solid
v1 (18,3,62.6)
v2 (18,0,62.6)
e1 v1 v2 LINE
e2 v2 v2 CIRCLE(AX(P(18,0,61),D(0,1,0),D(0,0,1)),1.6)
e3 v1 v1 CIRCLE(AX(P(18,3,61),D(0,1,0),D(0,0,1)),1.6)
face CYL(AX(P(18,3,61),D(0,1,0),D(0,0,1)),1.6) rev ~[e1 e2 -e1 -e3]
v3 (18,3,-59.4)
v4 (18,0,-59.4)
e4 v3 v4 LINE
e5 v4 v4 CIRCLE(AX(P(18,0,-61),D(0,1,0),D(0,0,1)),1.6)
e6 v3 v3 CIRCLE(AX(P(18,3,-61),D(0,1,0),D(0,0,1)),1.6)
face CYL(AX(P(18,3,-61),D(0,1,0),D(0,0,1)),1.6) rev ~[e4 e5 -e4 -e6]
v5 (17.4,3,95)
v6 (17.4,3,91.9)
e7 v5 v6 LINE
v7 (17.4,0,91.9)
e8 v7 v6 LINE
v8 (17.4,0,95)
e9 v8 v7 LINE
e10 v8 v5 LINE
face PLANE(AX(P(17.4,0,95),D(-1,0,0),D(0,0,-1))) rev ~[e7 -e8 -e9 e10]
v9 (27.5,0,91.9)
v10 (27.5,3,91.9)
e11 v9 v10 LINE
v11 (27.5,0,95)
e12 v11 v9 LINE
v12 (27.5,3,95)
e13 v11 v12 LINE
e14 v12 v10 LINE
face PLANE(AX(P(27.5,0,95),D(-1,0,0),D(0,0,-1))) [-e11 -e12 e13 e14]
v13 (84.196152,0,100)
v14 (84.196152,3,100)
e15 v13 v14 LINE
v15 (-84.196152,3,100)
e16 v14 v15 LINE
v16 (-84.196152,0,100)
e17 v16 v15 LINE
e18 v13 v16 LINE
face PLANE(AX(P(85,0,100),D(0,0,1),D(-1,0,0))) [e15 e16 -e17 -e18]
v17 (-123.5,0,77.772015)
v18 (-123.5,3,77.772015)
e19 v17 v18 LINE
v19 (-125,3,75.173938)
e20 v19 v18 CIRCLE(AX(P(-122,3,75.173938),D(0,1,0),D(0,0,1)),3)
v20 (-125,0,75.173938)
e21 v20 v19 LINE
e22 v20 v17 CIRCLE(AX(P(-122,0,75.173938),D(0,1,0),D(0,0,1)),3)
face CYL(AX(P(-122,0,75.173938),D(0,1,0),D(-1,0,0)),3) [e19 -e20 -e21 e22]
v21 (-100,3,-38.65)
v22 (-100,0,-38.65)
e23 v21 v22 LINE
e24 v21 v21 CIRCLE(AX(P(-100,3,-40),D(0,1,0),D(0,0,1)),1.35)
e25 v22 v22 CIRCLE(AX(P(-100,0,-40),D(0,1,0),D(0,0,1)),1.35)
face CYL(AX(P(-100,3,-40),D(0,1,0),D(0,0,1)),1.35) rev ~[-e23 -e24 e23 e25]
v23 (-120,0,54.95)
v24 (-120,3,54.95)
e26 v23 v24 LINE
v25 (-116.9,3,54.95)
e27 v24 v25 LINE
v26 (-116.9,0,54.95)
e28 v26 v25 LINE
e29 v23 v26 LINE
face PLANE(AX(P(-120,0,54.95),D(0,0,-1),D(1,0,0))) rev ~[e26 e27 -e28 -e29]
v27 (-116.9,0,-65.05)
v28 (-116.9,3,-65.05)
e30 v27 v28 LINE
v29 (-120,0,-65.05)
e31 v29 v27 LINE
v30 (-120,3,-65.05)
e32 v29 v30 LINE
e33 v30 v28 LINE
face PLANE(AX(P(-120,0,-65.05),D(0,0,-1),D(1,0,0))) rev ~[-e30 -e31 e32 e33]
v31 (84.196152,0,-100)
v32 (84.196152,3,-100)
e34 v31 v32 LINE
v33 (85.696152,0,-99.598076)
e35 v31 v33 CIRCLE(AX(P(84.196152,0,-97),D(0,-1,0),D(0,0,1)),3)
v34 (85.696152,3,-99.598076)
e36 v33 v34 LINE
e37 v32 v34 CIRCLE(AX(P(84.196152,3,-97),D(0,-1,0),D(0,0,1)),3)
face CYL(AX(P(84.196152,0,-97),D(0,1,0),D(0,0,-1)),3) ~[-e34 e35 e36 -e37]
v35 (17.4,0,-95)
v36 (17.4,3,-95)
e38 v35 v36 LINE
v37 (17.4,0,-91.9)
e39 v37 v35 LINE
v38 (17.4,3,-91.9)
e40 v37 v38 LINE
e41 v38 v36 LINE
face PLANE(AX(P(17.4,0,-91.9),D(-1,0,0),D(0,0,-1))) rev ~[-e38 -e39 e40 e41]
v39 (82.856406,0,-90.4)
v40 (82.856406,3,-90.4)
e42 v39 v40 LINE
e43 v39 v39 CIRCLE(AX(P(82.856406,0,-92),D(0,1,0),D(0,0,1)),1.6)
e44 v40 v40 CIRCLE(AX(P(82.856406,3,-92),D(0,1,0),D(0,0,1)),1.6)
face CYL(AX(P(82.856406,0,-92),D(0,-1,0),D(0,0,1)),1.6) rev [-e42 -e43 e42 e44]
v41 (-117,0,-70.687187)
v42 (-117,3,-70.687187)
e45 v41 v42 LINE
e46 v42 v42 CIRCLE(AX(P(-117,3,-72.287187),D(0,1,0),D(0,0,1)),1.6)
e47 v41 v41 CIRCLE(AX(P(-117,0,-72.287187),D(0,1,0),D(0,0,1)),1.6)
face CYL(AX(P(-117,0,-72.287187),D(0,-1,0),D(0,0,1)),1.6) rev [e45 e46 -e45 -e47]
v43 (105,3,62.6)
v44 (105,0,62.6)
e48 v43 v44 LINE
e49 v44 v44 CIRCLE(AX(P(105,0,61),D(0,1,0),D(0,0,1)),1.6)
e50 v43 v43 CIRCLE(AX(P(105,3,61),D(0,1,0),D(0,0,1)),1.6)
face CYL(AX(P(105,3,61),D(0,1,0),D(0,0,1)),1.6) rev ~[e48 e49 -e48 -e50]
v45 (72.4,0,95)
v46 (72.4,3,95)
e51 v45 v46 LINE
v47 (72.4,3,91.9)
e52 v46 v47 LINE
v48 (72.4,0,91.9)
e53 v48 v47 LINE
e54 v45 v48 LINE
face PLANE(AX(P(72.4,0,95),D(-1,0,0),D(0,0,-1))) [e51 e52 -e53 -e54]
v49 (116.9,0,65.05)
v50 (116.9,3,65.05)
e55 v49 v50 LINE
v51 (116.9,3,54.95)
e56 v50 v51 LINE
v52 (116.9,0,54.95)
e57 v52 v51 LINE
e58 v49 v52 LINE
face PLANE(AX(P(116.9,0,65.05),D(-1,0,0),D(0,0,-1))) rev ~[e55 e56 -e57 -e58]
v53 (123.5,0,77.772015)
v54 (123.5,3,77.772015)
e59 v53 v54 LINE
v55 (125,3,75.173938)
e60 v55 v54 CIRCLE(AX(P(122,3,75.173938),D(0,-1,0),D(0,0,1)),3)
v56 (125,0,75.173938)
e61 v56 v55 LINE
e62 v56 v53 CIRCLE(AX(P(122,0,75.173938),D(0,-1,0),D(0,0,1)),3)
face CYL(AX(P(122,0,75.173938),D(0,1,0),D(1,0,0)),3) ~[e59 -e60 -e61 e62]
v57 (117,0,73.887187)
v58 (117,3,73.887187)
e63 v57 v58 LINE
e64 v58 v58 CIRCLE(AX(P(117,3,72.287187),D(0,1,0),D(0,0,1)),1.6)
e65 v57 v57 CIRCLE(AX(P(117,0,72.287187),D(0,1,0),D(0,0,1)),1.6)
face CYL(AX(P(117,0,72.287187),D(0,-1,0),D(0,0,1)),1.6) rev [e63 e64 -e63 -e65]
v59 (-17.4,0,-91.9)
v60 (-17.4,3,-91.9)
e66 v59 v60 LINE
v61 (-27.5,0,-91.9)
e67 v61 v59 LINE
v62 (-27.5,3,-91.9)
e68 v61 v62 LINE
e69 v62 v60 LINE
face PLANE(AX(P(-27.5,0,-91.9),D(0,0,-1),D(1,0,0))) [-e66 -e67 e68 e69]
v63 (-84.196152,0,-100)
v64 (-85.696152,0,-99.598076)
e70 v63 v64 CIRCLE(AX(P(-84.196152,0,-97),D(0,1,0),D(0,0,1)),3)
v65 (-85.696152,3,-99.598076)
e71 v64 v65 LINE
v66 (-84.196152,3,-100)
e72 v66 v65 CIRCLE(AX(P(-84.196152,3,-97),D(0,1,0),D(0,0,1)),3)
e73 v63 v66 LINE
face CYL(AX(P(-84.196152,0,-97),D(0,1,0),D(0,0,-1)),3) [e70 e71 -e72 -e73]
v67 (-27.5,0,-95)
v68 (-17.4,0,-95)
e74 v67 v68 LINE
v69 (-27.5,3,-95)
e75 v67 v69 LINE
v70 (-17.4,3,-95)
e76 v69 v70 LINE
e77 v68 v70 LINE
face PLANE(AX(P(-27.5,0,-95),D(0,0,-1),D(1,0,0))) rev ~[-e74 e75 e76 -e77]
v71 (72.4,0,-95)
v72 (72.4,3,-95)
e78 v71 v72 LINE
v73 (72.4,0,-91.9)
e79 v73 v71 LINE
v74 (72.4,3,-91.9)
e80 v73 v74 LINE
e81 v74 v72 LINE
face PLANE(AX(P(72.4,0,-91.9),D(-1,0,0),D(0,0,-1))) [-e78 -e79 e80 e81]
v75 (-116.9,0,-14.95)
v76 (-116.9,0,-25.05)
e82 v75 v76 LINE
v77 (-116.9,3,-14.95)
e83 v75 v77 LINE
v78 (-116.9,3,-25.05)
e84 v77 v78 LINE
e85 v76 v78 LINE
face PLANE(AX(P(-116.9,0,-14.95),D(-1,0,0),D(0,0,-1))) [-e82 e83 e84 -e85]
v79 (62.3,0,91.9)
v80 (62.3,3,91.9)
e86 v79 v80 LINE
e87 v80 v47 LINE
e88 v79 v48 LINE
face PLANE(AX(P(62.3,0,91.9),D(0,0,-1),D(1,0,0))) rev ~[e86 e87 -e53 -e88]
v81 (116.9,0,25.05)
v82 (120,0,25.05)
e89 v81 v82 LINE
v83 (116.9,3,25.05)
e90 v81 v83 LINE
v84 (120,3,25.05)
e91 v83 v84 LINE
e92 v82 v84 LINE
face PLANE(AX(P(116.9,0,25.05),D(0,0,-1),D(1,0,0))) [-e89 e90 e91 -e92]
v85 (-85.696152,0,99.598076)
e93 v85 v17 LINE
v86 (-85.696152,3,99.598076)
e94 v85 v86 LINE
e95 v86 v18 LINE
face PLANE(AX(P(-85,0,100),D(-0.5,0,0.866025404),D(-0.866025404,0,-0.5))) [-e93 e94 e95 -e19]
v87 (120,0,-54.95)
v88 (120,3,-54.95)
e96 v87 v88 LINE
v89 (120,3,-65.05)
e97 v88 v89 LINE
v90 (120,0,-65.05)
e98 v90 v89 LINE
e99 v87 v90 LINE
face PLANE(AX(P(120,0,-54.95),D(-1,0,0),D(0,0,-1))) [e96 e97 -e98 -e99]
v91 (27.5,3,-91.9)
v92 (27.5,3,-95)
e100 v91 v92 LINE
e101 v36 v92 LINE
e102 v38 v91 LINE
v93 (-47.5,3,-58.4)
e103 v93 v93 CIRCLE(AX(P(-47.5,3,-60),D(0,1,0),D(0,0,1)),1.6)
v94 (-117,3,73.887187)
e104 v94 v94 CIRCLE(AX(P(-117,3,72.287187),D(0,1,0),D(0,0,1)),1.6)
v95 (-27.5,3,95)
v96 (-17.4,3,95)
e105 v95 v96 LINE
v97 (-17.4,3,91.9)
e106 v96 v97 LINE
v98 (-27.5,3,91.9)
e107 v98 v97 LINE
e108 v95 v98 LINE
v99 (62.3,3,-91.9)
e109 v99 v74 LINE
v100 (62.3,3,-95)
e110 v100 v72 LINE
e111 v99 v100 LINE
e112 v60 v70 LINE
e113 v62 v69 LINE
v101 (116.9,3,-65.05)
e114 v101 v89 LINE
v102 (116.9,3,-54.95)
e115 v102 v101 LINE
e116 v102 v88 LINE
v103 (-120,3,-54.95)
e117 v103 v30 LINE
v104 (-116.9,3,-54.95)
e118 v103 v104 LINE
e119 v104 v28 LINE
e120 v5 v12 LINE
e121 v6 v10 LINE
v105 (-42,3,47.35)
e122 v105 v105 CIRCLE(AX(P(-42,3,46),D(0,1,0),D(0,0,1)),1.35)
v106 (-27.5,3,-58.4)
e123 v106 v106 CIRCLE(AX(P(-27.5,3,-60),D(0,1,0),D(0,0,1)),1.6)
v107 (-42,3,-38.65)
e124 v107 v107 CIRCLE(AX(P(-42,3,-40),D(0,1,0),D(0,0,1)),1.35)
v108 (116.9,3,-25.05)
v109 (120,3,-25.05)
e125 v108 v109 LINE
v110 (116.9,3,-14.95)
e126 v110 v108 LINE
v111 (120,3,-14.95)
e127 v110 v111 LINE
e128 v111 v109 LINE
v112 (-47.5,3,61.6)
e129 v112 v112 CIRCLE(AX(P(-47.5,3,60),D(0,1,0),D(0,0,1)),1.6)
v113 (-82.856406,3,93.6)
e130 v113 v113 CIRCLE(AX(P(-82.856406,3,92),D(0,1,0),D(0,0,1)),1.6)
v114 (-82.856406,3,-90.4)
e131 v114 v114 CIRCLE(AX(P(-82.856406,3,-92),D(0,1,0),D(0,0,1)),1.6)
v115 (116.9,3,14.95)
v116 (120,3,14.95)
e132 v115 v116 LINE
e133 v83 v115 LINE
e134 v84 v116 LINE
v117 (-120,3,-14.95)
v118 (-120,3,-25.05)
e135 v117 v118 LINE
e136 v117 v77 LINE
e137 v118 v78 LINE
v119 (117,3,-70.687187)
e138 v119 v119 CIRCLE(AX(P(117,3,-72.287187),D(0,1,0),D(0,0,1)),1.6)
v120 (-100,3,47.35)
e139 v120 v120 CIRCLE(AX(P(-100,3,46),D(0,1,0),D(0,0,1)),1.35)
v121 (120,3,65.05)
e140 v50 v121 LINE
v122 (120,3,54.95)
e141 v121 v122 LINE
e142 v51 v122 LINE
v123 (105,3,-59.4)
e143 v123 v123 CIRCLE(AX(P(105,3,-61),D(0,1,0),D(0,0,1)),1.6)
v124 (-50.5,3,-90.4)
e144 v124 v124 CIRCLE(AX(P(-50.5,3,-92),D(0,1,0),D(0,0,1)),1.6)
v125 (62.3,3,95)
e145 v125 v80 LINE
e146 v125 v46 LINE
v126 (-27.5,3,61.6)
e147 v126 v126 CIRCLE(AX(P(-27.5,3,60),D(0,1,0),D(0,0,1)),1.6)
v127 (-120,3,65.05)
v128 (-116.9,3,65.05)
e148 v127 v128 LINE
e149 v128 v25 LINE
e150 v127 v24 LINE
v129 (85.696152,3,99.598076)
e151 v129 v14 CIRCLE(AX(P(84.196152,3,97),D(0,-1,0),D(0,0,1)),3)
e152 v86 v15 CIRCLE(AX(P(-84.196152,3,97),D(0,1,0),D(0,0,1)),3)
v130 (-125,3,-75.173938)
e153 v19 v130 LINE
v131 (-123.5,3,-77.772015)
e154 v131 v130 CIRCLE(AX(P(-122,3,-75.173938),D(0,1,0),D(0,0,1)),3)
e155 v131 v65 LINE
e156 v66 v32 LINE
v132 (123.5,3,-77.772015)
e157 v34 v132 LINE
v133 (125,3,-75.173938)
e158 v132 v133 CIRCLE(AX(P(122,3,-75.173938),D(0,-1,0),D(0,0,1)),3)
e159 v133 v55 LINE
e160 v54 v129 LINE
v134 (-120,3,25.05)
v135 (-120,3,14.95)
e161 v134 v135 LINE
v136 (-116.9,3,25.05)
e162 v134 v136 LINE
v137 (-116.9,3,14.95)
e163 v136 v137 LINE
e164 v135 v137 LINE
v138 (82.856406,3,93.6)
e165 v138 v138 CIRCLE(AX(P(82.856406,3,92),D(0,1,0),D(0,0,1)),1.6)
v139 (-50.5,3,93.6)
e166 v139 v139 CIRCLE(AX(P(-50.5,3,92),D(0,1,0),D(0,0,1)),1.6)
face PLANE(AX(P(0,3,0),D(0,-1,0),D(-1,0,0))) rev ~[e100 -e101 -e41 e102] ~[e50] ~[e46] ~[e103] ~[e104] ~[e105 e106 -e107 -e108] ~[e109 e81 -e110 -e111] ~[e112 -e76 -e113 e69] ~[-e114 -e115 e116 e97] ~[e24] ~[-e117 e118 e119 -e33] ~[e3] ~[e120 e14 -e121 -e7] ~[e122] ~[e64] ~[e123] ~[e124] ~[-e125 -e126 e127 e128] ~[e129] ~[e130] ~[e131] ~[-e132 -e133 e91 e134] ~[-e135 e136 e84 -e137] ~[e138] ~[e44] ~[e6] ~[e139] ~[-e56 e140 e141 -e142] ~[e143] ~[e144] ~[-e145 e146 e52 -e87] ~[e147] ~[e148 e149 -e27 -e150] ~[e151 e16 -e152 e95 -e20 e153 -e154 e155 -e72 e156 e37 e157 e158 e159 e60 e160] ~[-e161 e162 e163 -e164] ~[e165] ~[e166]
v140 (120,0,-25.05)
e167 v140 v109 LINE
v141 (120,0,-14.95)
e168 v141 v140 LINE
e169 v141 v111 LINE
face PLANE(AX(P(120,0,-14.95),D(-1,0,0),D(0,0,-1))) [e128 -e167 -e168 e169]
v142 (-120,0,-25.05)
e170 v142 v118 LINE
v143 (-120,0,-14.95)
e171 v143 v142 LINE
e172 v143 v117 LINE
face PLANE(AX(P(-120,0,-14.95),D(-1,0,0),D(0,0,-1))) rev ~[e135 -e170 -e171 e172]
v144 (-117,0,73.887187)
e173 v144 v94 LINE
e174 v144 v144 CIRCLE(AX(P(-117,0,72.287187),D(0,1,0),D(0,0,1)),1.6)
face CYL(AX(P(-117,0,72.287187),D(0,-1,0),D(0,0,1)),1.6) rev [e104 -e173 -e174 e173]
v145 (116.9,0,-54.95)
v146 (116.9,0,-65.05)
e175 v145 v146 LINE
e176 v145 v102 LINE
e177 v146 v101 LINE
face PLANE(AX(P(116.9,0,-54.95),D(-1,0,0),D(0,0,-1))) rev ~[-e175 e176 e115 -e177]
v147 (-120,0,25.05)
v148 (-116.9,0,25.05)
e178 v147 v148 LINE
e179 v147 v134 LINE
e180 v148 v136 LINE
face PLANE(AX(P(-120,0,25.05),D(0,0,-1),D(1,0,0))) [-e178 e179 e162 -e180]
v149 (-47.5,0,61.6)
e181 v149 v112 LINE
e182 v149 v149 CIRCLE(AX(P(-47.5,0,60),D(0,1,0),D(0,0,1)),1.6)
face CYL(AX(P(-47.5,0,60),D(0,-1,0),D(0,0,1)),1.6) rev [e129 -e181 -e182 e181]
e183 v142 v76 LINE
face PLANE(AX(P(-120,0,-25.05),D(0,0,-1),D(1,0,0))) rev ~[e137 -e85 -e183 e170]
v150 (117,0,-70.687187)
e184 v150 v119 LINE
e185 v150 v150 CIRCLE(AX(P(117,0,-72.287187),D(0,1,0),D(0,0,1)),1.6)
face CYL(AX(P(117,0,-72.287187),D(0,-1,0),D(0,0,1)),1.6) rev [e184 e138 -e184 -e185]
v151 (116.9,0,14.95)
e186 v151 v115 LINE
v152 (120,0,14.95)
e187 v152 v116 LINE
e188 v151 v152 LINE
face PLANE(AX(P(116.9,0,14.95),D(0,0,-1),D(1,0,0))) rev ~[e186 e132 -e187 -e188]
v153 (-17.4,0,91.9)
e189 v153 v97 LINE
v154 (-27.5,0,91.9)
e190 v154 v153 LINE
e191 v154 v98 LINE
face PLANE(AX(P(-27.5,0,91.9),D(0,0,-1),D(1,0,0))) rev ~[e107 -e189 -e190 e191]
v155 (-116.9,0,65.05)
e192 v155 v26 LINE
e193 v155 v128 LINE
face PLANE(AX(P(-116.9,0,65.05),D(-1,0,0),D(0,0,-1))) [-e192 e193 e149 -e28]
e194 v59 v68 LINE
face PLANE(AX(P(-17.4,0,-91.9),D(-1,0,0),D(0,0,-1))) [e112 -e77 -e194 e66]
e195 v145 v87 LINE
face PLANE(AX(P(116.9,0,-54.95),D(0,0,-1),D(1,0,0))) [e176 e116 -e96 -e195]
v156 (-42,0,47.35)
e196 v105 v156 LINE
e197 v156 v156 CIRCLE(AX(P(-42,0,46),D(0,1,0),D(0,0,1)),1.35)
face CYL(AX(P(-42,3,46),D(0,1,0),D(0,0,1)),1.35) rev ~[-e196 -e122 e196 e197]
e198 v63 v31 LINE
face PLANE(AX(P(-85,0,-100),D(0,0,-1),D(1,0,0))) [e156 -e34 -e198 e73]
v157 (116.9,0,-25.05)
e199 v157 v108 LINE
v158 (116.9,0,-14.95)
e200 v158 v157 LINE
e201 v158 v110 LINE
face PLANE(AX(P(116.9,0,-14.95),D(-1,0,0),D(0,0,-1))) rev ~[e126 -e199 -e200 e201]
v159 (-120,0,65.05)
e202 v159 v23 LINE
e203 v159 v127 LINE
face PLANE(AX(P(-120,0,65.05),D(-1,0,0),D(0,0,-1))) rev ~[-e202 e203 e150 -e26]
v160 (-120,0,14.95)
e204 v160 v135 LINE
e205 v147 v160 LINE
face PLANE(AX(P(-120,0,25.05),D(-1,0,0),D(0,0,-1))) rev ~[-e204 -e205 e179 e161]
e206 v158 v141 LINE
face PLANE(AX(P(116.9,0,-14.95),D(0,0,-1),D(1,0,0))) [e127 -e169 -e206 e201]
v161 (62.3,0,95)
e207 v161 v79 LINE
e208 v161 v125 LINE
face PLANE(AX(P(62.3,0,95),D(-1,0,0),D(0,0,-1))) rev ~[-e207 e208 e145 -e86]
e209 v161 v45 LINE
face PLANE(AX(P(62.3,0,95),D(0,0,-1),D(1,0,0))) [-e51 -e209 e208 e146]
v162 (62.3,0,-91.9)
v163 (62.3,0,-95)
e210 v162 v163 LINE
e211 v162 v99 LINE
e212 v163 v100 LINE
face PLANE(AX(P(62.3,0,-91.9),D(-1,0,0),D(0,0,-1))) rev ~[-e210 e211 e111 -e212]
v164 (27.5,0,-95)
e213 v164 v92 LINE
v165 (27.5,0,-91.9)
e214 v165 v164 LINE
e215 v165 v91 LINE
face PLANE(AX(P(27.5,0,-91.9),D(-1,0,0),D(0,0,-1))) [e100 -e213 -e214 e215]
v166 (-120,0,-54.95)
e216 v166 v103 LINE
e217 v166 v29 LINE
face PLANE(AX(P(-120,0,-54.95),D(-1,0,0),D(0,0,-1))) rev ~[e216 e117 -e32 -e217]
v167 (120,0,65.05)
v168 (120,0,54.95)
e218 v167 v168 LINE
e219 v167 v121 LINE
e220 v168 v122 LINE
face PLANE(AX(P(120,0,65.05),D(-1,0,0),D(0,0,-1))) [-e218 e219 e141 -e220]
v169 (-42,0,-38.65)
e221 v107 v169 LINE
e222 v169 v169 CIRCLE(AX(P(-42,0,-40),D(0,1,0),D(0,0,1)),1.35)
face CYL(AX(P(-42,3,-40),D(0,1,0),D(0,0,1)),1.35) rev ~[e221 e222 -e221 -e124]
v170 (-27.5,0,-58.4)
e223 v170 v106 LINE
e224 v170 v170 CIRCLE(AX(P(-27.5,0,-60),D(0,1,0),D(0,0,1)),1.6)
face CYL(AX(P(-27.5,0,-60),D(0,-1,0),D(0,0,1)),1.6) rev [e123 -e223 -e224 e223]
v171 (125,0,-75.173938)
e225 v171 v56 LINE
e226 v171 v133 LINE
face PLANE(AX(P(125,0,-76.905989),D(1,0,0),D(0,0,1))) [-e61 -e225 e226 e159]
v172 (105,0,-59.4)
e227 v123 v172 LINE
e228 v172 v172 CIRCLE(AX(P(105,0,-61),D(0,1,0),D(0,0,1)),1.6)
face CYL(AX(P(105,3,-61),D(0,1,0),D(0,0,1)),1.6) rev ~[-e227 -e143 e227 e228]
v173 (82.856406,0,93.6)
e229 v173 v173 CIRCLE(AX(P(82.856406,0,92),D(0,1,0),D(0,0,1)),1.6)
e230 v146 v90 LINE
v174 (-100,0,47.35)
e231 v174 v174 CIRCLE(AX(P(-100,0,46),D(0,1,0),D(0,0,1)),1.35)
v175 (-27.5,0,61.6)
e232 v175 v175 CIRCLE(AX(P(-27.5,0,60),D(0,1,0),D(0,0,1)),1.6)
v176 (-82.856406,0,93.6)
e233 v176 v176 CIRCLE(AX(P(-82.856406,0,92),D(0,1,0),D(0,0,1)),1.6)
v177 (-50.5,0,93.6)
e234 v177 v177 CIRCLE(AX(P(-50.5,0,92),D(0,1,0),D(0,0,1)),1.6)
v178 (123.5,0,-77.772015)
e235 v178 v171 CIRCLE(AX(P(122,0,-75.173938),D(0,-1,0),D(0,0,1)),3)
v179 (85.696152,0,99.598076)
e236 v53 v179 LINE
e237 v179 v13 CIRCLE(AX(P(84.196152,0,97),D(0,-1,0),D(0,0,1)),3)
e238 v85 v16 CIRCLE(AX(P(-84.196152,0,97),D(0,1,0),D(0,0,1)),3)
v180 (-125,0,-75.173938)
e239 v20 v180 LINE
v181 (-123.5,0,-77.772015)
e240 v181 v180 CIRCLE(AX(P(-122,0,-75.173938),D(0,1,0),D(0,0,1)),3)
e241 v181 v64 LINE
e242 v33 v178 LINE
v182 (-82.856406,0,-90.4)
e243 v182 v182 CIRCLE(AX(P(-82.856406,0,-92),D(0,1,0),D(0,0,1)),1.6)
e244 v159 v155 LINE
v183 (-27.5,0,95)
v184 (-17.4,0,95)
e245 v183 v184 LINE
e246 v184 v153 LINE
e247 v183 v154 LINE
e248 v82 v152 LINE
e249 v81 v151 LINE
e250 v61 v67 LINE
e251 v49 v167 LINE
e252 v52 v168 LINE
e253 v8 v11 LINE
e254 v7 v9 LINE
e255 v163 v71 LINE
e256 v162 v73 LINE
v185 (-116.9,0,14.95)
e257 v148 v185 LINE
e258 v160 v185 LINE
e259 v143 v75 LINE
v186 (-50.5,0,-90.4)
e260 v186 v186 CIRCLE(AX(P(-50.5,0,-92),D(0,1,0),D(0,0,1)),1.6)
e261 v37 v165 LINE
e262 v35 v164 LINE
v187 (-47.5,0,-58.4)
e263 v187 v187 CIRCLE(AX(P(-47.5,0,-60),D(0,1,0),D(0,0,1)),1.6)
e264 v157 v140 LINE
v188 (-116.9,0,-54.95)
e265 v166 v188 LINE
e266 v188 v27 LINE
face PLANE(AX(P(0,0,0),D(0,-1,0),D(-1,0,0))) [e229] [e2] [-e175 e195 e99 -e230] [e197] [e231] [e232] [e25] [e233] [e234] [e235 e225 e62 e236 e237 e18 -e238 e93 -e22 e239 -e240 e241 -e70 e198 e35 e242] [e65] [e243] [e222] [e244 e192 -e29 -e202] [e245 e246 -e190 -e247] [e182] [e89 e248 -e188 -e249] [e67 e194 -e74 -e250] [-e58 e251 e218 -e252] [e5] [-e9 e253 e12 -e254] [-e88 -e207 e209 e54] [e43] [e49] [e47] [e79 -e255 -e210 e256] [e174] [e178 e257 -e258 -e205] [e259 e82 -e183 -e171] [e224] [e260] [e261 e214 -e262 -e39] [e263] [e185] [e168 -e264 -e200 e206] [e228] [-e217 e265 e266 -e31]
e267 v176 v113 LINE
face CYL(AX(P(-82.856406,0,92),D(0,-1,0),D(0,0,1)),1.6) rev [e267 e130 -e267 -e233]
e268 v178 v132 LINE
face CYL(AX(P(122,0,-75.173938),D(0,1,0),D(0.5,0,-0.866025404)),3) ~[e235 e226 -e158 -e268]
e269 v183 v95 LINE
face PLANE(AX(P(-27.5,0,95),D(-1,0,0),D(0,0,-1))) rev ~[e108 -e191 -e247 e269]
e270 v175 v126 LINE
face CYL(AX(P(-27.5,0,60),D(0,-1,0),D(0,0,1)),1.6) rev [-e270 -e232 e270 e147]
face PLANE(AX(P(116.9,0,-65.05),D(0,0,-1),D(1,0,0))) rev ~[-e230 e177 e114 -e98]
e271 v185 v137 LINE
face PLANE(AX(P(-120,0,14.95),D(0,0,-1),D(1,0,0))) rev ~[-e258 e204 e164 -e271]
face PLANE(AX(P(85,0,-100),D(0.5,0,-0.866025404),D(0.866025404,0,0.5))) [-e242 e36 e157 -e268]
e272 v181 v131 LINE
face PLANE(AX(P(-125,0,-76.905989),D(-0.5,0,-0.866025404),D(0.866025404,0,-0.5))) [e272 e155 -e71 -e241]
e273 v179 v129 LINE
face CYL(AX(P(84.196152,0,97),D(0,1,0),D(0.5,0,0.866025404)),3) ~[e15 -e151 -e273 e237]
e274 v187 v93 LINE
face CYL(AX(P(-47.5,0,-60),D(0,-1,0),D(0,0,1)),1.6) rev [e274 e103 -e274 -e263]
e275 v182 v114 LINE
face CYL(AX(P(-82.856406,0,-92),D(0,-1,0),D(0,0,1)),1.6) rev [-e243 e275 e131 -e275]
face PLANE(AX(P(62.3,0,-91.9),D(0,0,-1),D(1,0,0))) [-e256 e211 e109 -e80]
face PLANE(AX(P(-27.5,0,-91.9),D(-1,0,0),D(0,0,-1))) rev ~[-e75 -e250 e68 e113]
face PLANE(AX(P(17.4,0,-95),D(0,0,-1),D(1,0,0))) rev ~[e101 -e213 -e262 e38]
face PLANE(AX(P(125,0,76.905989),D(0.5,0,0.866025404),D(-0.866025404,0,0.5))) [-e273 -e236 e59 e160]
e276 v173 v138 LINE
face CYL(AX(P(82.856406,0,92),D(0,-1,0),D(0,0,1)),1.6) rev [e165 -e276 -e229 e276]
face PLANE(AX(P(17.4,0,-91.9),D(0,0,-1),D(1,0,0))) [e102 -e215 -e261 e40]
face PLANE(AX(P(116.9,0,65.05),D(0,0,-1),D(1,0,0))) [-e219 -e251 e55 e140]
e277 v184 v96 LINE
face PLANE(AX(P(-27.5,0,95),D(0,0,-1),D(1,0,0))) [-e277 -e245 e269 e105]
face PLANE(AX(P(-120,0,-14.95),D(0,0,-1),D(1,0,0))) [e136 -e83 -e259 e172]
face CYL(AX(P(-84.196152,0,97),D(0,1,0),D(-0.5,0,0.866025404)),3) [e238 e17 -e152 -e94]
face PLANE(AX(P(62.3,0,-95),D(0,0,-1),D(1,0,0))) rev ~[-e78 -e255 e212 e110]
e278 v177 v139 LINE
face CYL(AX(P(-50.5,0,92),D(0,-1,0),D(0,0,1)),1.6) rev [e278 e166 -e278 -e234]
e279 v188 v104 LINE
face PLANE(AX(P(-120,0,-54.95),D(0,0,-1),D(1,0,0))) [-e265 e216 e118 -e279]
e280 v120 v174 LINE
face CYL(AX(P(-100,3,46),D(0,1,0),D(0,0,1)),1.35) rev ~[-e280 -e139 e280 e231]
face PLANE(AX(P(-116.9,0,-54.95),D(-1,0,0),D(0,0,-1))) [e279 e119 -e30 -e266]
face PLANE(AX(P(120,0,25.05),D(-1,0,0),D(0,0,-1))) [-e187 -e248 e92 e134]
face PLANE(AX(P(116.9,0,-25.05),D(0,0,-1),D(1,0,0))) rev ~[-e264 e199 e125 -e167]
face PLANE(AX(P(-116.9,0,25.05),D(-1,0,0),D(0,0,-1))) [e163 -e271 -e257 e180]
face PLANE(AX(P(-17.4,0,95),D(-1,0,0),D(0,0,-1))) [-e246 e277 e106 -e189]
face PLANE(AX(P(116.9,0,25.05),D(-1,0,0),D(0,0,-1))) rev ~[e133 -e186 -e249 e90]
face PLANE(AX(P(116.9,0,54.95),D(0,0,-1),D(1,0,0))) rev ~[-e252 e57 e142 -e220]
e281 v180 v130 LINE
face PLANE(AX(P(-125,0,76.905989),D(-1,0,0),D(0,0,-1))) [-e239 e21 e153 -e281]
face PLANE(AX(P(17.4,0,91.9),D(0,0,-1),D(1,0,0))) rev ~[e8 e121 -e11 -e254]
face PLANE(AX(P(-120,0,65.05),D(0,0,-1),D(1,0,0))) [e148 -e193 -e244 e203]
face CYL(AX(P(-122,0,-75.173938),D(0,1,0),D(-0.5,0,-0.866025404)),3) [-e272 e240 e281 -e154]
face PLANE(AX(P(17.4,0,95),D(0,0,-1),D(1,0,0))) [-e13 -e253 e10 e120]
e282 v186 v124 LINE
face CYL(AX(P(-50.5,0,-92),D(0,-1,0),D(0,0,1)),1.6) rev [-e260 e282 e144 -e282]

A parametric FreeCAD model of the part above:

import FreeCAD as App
import Part
import Sketcher

V = App.Vector
Q = App.Units.Quantity


def edges_at(feature, points):
    """Names of the edges that pass closest to the given points."""
    edges = feature.Shape.Edges
    near = lambda p: min(range(len(edges)), key=lambda i: edges[i].distToShape(Part.Vertex(*p))[0])
    return sorted({f"Edge{near(p) + 1}" for p in points})

doc = App.newDocument("Part")
body = doc.addObject("PartDesign::Body", "Body")

# Sketch on XZ plane
sketch1 = body.newObject("Sketcher::SketchObject", "Sketch")
sketch1.AttachmentSupport = (doc.getObject("XZ_Plane"), [""])
sketch1.MapMode = "FlatFace"
sketch1.addGeometry(Part.LineSegment(V(85, -100, 0), V(-85, -100, 0)), False)
sketch1.addGeometry(Part.LineSegment(V(-85, -100, 0), V(-125, -76.905989, 0)), False)
sketch1.addGeometry(Part.LineSegment(V(-125, -76.905989, 0), V(-125, 76.905989, 0)), False)
sketch1.addGeometry(Part.LineSegment(V(-125, 76.905989, 0), V(-85, 100, 0)), False)
sketch1.addGeometry(Part.LineSegment(V(-85, 100, 0), V(85, 100, 0)), False)
sketch1.addGeometry(Part.LineSegment(V(85, 100, 0), V(125, 76.905989, 0)), False)
sketch1.addGeometry(Part.LineSegment(V(125, 76.905989, 0), V(125, -76.905989, 0)), False)
sketch1.addGeometry(Part.LineSegment(V(125, -76.905989, 0), V(85, -100, 0)), False)
sketch1.addGeometry(Part.Circle(V(117, 72.287187, 0), V(0, 0, 1), 1.6), False)
sketch1.addGeometry(Part.Circle(V(82.856406, 92, 0), V(0, 0, 1), 1.6), False)
sketch1.addGeometry(Part.LineSegment(V(62.3, 95, 0), V(62.3, 91.9, 0)), False)
sketch1.addGeometry(Part.LineSegment(V(62.3, 91.9, 0), V(72.4, 91.9, 0)), False)
sketch1.addGeometry(Part.LineSegment(V(72.4, 91.9, 0), V(72.4, 95, 0)), False)
sketch1.addGeometry(Part.LineSegment(V(72.4, 95, 0), V(62.3, 95, 0)), False)
sketch1.addGeometry(Part.LineSegment(V(116.9, 65.05, 0), V(116.9, 54.95, 0)), False)
sketch1.addGeometry(Part.LineSegment(V(116.9, 54.95, 0), V(120, 54.95, 0)), False)
sketch1.addGeometry(Part.LineSegment(V(120, 54.95, 0), V(120, 65.05, 0)), False)
sketch1.addGeometry(Part.LineSegment(V(120, 65.05, 0), V(116.9, 65.05, 0)), False)
sketch1.addGeometry(Part.LineSegment(V(17.4, 95, 0), V(17.4, 91.9, 0)), False)
sketch1.addGeometry(Part.LineSegment(V(17.4, 91.9, 0), V(27.5, 91.9, 0)), False)
sketch1.addGeometry(Part.LineSegment(V(27.5, 91.9, 0), V(27.5, 95, 0)), False)
sketch1.addGeometry(Part.LineSegment(V(27.5, 95, 0), V(17.4, 95, 0)), False)
sketch1.addGeometry(Part.LineSegment(V(116.9, 25.05, 0), V(116.9, 14.95, 0)), False)
sketch1.addGeometry(Part.LineSegment(V(116.9, 14.95, 0), V(120, 14.95, 0)), False)
sketch1.addGeometry(Part.LineSegment(V(120, 14.95, 0), V(120, 25.05, 0)), False)
sketch1.addGeometry(Part.LineSegment(V(120, 25.05, 0), V(116.9, 25.05, 0)), False)
sketch1.addGeometry(Part.LineSegment(V(-27.5, 95, 0), V(-27.5, 91.9, 0)), False)
sketch1.addGeometry(Part.LineSegment(V(-27.5, 91.9, 0), V(-17.4, 91.9, 0)), False)
sketch1.addGeometry(Part.LineSegment(V(-17.4, 91.9, 0), V(-17.4, 95, 0)), False)
sketch1.addGeometry(Part.LineSegment(V(-17.4, 95, 0), V(-27.5, 95, 0)), False)
sketch1.addGeometry(Part.Circle(V(-50.5, 92, 0), V(0, 0, 1), 1.6), False)
sketch1.addGeometry(Part.Circle(V(-27.5, 60, 0), V(0, 0, 1), 1.6), False)
sketch1.addGeometry(Part.Circle(V(-47.5, 60, 0), V(0, 0, 1), 1.6), False)
sketch1.addGeometry(Part.Circle(V(-82.856406, 92, 0), V(0, 0, 1), 1.6), False)
sketch1.addGeometry(Part.Circle(V(-117, 72.287187, 0), V(0, 0, 1), 1.6), False)
sketch1.addGeometry(Part.LineSegment(V(-120, 65.05, 0), V(-120, 54.95, 0)), False)
sketch1.addGeometry(Part.LineSegment(V(-120, 54.95, 0), V(-116.9, 54.95, 0)), False)
sketch1.addGeometry(Part.LineSegment(V(-116.9, 54.95, 0), V(-116.9, 65.05, 0)), False)
sketch1.addGeometry(Part.LineSegment(V(-116.9, 65.05, 0), V(-120, 65.05, 0)), False)
sketch1.addGeometry(Part.LineSegment(V(-120, 25.05, 0), V(-120, 14.95, 0)), False)
sketch1.addGeometry(Part.LineSegment(V(-120, 14.95, 0), V(-116.9, 14.95, 0)), False)
sketch1.addGeometry(Part.LineSegment(V(-116.9, 14.95, 0), V(-116.9, 25.05, 0)), False)
sketch1.addGeometry(Part.LineSegment(V(-116.9, 25.05, 0), V(-120, 25.05, 0)), False)
sketch1.addGeometry(Part.LineSegment(V(116.9, -14.95, 0), V(116.9, -25.05, 0)), False)
sketch1.addGeometry(Part.LineSegment(V(116.9, -25.05, 0), V(120, -25.05, 0)), False)
sketch1.addGeometry(Part.LineSegment(V(120, -25.05, 0), V(120, -14.95, 0)), False)
sketch1.addGeometry(Part.LineSegment(V(120, -14.95, 0), V(116.9, -14.95, 0)), False)
sketch1.addGeometry(Part.LineSegment(V(116.9, -54.95, 0), V(116.9, -65.05, 0)), False)
sketch1.addGeometry(Part.LineSegment(V(116.9, -65.05, 0), V(120, -65.05, 0)), False)
sketch1.addGeometry(Part.LineSegment(V(120, -65.05, 0), V(120, -54.95, 0)), False)
sketch1.addGeometry(Part.LineSegment(V(120, -54.95, 0), V(116.9, -54.95, 0)), False)
sketch1.addGeometry(Part.Circle(V(117, -72.287187, 0), V(0, 0, 1), 1.6), False)
sketch1.addGeometry(Part.Circle(V(82.856406, -92, 0), V(0, 0, 1), 1.6), False)
sketch1.addGeometry(Part.LineSegment(V(62.3, -91.9, 0), V(62.3, -95, 0)), False)
sketch1.addGeometry(Part.LineSegment(V(62.3, -95, 0), V(72.4, -95, 0)), False)
sketch1.addGeometry(Part.LineSegment(V(72.4, -95, 0), V(72.4, -91.9, 0)), False)
sketch1.addGeometry(Part.LineSegment(V(72.4, -91.9, 0), V(62.3, -91.9, 0)), False)
sketch1.addGeometry(Part.LineSegment(V(17.4, -91.9, 0), V(17.4, -95, 0)), False)
sketch1.addGeometry(Part.LineSegment(V(17.4, -95, 0), V(27.5, -95, 0)), False)
sketch1.addGeometry(Part.LineSegment(V(27.5, -95, 0), V(27.5, -91.9, 0)), False)
sketch1.addGeometry(Part.LineSegment(V(27.5, -91.9, 0), V(17.4, -91.9, 0)), False)
sketch1.addGeometry(Part.LineSegment(V(-120, -14.95, 0), V(-120, -25.05, 0)), False)
sketch1.addGeometry(Part.LineSegment(V(-120, -25.05, 0), V(-116.9, -25.05, 0)), False)
sketch1.addGeometry(Part.LineSegment(V(-116.9, -25.05, 0), V(-116.9, -14.95, 0)), False)
sketch1.addGeometry(Part.LineSegment(V(-116.9, -14.95, 0), V(-120, -14.95, 0)), False)
sketch1.addGeometry(Part.Circle(V(-27.5, -60, 0), V(0, 0, 1), 1.6), False)
sketch1.addGeometry(Part.Circle(V(-47.5, -60, 0), V(0, 0, 1), 1.6), False)
sketch1.addGeometry(Part.LineSegment(V(-27.5, -91.9, 0), V(-27.5, -95, 0)), False)
sketch1.addGeometry(Part.LineSegment(V(-27.5, -95, 0), V(-17.4, -95, 0)), False)
sketch1.addGeometry(Part.LineSegment(V(-17.4, -95, 0), V(-17.4, -91.9, 0)), False)
sketch1.addGeometry(Part.LineSegment(V(-17.4, -91.9, 0), V(-27.5, -91.9, 0)), False)
sketch1.addGeometry(Part.Circle(V(-50.5, -92, 0), V(0, 0, 1), 1.6), False)
sketch1.addGeometry(Part.LineSegment(V(-120, -54.95, 0), V(-120, -65.05, 0)), False)
sketch1.addGeometry(Part.LineSegment(V(-120, -65.05, 0), V(-116.9, -65.05, 0)), False)
sketch1.addGeometry(Part.LineSegment(V(-116.9, -65.05, 0), V(-116.9, -54.95, 0)), False)
sketch1.addGeometry(Part.LineSegment(V(-116.9, -54.95, 0), V(-120, -54.95, 0)), False)
sketch1.addGeometry(Part.Circle(V(-82.856406, -92, 0), V(0, 0, 1), 1.6), False)
sketch1.addGeometry(Part.Circle(V(-117, -72.287187, 0), V(0, 0, 1), 1.6), False)
sketch1.addConstraint(Sketcher.Constraint("Coincident", 0, 2, 1, 1))
sketch1.addConstraint(Sketcher.Constraint("Coincident", 1, 2, 2, 1))
sketch1.addConstraint(Sketcher.Constraint("Coincident", 2, 2, 3, 1))
sketch1.addConstraint(Sketcher.Constraint("Coincident", 3, 2, 4, 1))
sketch1.addConstraint(Sketcher.Constraint("Coincident", 4, 2, 5, 1))
sketch1.addConstraint(Sketcher.Constraint("Coincident", 5, 2, 6, 1))
sketch1.addConstraint(Sketcher.Constraint("Coincident", 6, 2, 7, 1))
sketch1.addConstraint(Sketcher.Constraint("Coincident", 7, 2, 0, 1))
sketch1.addConstraint(Sketcher.Constraint("Coincident", 10, 2, 11, 1))
sketch1.addConstraint(Sketcher.Constraint("Coincident", 11, 2, 12, 1))
sketch1.addConstraint(Sketcher.Constraint("Coincident", 12, 2, 13, 1))
sketch1.addConstraint(Sketcher.Constraint("Coincident", 13, 2, 10, 1))
sketch1.addConstraint(Sketcher.Constraint("Coincident", 14, 2, 15, 1))
sketch1.addConstraint(Sketcher.Constraint("Coincident", 15, 2, 16, 1))
sketch1.addConstraint(Sketcher.Constraint("Coincident", 16, 2, 17, 1))
sketch1.addConstraint(Sketcher.Constraint("Coincident", 17, 2, 14, 1))
sketch1.addConstraint(Sketcher.Constraint("Coincident", 18, 2, 19, 1))
sketch1.addConstraint(Sketcher.Constraint("Coincident", 19, 2, 20, 1))
sketch1.addConstraint(Sketcher.Constraint("Coincident", 20, 2, 21, 1))
sketch1.addConstraint(Sketcher.Constraint("Coincident", 21, 2, 18, 1))
sketch1.addConstraint(Sketcher.Constraint("Coincident", 22, 2, 23, 1))
sketch1.addConstraint(Sketcher.Constraint("Coincident", 23, 2, 24, 1))
sketch1.addConstraint(Sketcher.Constraint("Coincident", 24, 2, 25, 1))
sketch1.addConstraint(Sketcher.Constraint("Coincident", 25, 2, 22, 1))
sketch1.addConstraint(Sketcher.Constraint("Coincident", 26, 2, 27, 1))
sketch1.addConstraint(Sketcher.Constraint("Coincident", 27, 2, 28, 1))
sketch1.addConstraint(Sketcher.Constraint("Coincident", 28, 2, 29, 1))
sketch1.addConstraint(Sketcher.Constraint("Coincident", 29, 2, 26, 1))
sketch1.addConstraint(Sketcher.Constraint("Coincident", 35, 2, 36, 1))
sketch1.addConstraint(Sketcher.Constraint("Coincident", 36, 2, 37, 1))
sketch1.addConstraint(Sketcher.Constraint("Coincident", 37, 2, 38, 1))
sketch1.addConstraint(Sketcher.Constraint("Coincident", 38, 2, 35, 1))
sketch1.addConstraint(Sketcher.Constraint("Coincident", 39, 2, 40, 1))
sketch1.addConstraint(Sketcher.Constraint("Coincident", 40, 2, 41, 1))
sketch1.addConstraint(Sketcher.Constraint("Coincident", 41, 2, 42, 1))
sketch1.addConstraint(Sketcher.Constraint("Coincident", 42, 2, 39, 1))
sketch1.addConstraint(Sketcher.Constraint("Coincident", 43, 2, 44, 1))
sketch1.addConstraint(Sketcher.Constraint("Coincident", 44, 2, 45, 1))
sketch1.addConstraint(Sketcher.Constraint("Coincident", 45, 2, 46, 1))
sketch1.addConstraint(Sketcher.Constraint("Coincident", 46, 2, 43, 1))
sketch1.addConstraint(Sketcher.Constraint("Coincident", 47, 2, 48, 1))
sketch1.addConstraint(Sketcher.Constraint("Coincident", 48, 2, 49, 1))
sketch1.addConstraint(Sketcher.Constraint("Coincident", 49, 2, 50, 1))
sketch1.addConstraint(Sketcher.Constraint("Coincident", 50, 2, 47, 1))
sketch1.addConstraint(Sketcher.Constraint("Coincident", 53, 2, 54, 1))
sketch1.addConstraint(Sketcher.Constraint("Coincident", 54, 2, 55, 1))
sketch1.addConstraint(Sketcher.Constraint("Coincident", 55, 2, 56, 1))
sketch1.addConstraint(Sketcher.Constraint("Coincident", 56, 2, 53, 1))
sketch1.addConstraint(Sketcher.Constraint("Coincident", 57, 2, 58, 1))
sketch1.addConstraint(Sketcher.Constraint("Coincident", 58, 2, 59, 1))
sketch1.addConstraint(Sketcher.Constraint("Coincident", 59, 2, 60, 1))
sketch1.addConstraint(Sketcher.Constraint("Coincident", 60, 2, 57, 1))
sketch1.addConstraint(Sketcher.Constraint("Coincident", 61, 2, 62, 1))
sketch1.addConstraint(Sketcher.Constraint("Coincident", 62, 2, 63, 1))
sketch1.addConstraint(Sketcher.Constraint("Coincident", 63, 2, 64, 1))
sketch1.addConstraint(Sketcher.Constraint("Coincident", 64, 2, 61, 1))
sketch1.addConstraint(Sketcher.Constraint("Coincident", 67, 2, 68, 1))
sketch1.addConstraint(Sketcher.Constraint("Coincident", 68, 2, 69, 1))
sketch1.addConstraint(Sketcher.Constraint("Coincident", 69, 2, 70, 1))
sketch1.addConstraint(Sketcher.Constraint("Coincident", 70, 2, 67, 1))
sketch1.addConstraint(Sketcher.Constraint("Coincident", 72, 2, 73, 1))
sketch1.addConstraint(Sketcher.Constraint("Coincident", 73, 2, 74, 1))
sketch1.addConstraint(Sketcher.Constraint("Coincident", 74, 2, 75, 1))
sketch1.addConstraint(Sketcher.Constraint("Coincident", 75, 2, 72, 1))
sketch1.addConstraint(Sketcher.Constraint("Horizontal", 0))
sketch1.addConstraint(Sketcher.Constraint("Vertical", 2))
sketch1.addConstraint(Sketcher.Constraint("Horizontal", 4))
sketch1.addConstraint(Sketcher.Constraint("Vertical", 6))
sketch1.addConstraint(Sketcher.Constraint("Vertical", 10))
sketch1.addConstraint(Sketcher.Constraint("Horizontal", 11))
sketch1.addConstraint(Sketcher.Constraint("Vertical", 12))
sketch1.addConstraint(Sketcher.Constraint("Horizontal", 13))
sketch1.addConstraint(Sketcher.Constraint("Vertical", 14))
sketch1.addConstraint(Sketcher.Constraint("Horizontal", 15))
sketch1.addConstraint(Sketcher.Constraint("Vertical", 16))
sketch1.addConstraint(Sketcher.Constraint("Horizontal", 17))
sketch1.addConstraint(Sketcher.Constraint("Vertical", 18))
sketch1.addConstraint(Sketcher.Constraint("Horizontal", 19))
sketch1.addConstraint(Sketcher.Constraint("Vertical", 20))
sketch1.addConstraint(Sketcher.Constraint("Horizontal", 21))
sketch1.addConstraint(Sketcher.Constraint("Vertical", 22))
sketch1.addConstraint(Sketcher.Constraint("Horizontal", 23))
sketch1.addConstraint(Sketcher.Constraint("Vertical", 24))
sketch1.addConstraint(Sketcher.Constraint("Horizontal", 25))
sketch1.addConstraint(Sketcher.Constraint("Vertical", 26))
sketch1.addConstraint(Sketcher.Constraint("Horizontal", 27))
sketch1.addConstraint(Sketcher.Constraint("Vertical", 28))
sketch1.addConstraint(Sketcher.Constraint("Horizontal", 29))
sketch1.addConstraint(Sketcher.Constraint("Vertical", 35))
sketch1.addConstraint(Sketcher.Constraint("Horizontal", 36))
sketch1.addConstraint(Sketcher.Constraint("Vertical", 37))
sketch1.addConstraint(Sketcher.Constraint("Horizontal", 38))
sketch1.addConstraint(Sketcher.Constraint("Vertical", 39))
sketch1.addConstraint(Sketcher.Constraint("Horizontal", 40))
sketch1.addConstraint(Sketcher.Constraint("Vertical", 41))
sketch1.addConstraint(Sketcher.Constraint("Horizontal", 42))
sketch1.addConstraint(Sketcher.Constraint("Vertical", 43))
sketch1.addConstraint(Sketcher.Constraint("Horizontal", 44))
sketch1.addConstraint(Sketcher.Constraint("Vertical", 45))
sketch1.addConstraint(Sketcher.Constraint("Horizontal", 46))
sketch1.addConstraint(Sketcher.Constraint("Vertical", 47))
sketch1.addConstraint(Sketcher.Constraint("Horizontal", 48))
sketch1.addConstraint(Sketcher.Constraint("Vertical", 49))
sketch1.addConstraint(Sketcher.Constraint("Horizontal", 50))
sketch1.addConstraint(Sketcher.Constraint("Vertical", 53))
sketch1.addConstraint(Sketcher.Constraint("Horizontal", 54))
sketch1.addConstraint(Sketcher.Constraint("Vertical", 55))
sketch1.addConstraint(Sketcher.Constraint("Horizontal", 56))
sketch1.addConstraint(Sketcher.Constraint("Vertical", 57))
sketch1.addConstraint(Sketcher.Constraint("Horizontal", 58))
sketch1.addConstraint(Sketcher.Constraint("Vertical", 59))
sketch1.addConstraint(Sketcher.Constraint("Horizontal", 60))
sketch1.addConstraint(Sketcher.Constraint("Vertical", 61))
sketch1.addConstraint(Sketcher.Constraint("Horizontal", 62))
sketch1.addConstraint(Sketcher.Constraint("Vertical", 63))
sketch1.addConstraint(Sketcher.Constraint("Horizontal", 64))
sketch1.addConstraint(Sketcher.Constraint("Vertical", 67))
sketch1.addConstraint(Sketcher.Constraint("Horizontal", 68))
sketch1.addConstraint(Sketcher.Constraint("Vertical", 69))
sketch1.addConstraint(Sketcher.Constraint("Horizontal", 70))
sketch1.addConstraint(Sketcher.Constraint("Vertical", 72))
sketch1.addConstraint(Sketcher.Constraint("Horizontal", 73))
sketch1.addConstraint(Sketcher.Constraint("Vertical", 74))
sketch1.addConstraint(Sketcher.Constraint("Horizontal", 75))
sketch1.addConstraint(Sketcher.Constraint("Equal", 8, 9))
sketch1.addConstraint(Sketcher.Constraint("Equal", 9, 30))
sketch1.addConstraint(Sketcher.Constraint("Equal", 30, 31))
sketch1.addConstraint(Sketcher.Constraint("Equal", 31, 32))
sketch1.addConstraint(Sketcher.Constraint("Equal", 32, 33))
sketch1.addConstraint(Sketcher.Constraint("Equal", 33, 34))
sketch1.addConstraint(Sketcher.Constraint("Equal", 34, 51))
sketch1.addConstraint(Sketcher.Constraint("Equal", 51, 52))
sketch1.addConstraint(Sketcher.Constraint("Equal", 52, 65))
sketch1.addConstraint(Sketcher.Constraint("Equal", 65, 66))
sketch1.addConstraint(Sketcher.Constraint("Equal", 66, 71))
sketch1.addConstraint(Sketcher.Constraint("Equal", 71, 76))
sketch1.addConstraint(Sketcher.Constraint("Equal", 76, 77))
sketch1.addConstraint(Sketcher.Constraint("Symmetric", 34, 3, 51, 3, -1, 1))
sketch1.addConstraint(Sketcher.Constraint("Symmetric", 33, 3, 52, 3, -1, 1))
sketch1.addConstraint(Sketcher.Constraint("Symmetric", 9, 3, 76, 3, -1, 1))
sketch1.addConstraint(Sketcher.Constraint("Symmetric", 8, 3, 77, 3, -1, 1))
sketch1.addConstraint(Sketcher.Constraint("Symmetric", 0, 2, 4, 2, -1, 1))
sketch1.addConstraint(Sketcher.Constraint("Symmetric", 1, 2, 5, 2, -1, 1))
sketch1.addConstraint(Sketcher.Constraint("Symmetric", 41, 2, 43, 2, -1, 1))
sketch1.addConstraint(Sketcher.Constraint("Symmetric", 39, 2, 45, 2, -1, 1))
sketch1.addConstraint(Sketcher.Constraint("Symmetric", 37, 2, 47, 2, -1, 1))
sketch1.addConstraint(Sketcher.Constraint("Symmetric", 35, 2, 49, 2, -1, 1))
sketch1.addConstraint(Sketcher.Constraint("Symmetric", 28, 2, 57, 2, -1, 1))
sketch1.addConstraint(Sketcher.Constraint("Symmetric", 26, 2, 59, 2, -1, 1))
sketch1.addConstraint(Sketcher.Constraint("Symmetric", 24, 2, 61, 2, -1, 1))
sketch1.addConstraint(Sketcher.Constraint("Symmetric", 22, 2, 63, 2, -1, 1))
sketch1.addConstraint(Sketcher.Constraint("Symmetric", 20, 2, 67, 2, -1, 1))
sketch1.addConstraint(Sketcher.Constraint("Symmetric", 18, 2, 69, 2, -1, 1))
sketch1.addConstraint(Sketcher.Constraint("Symmetric", 16, 2, 72, 2, -1, 1))
sketch1.addConstraint(Sketcher.Constraint("Symmetric", 14, 2, 74, 2, -1, 1))
sketch1.addConstraint(Sketcher.Constraint("Symmetric", 9, 3, 33, 3, -2))
sketch1.addConstraint(Sketcher.Constraint("Symmetric", 8, 3, 34, 3, -2))
sketch1.addConstraint(Sketcher.Constraint("Symmetric", 19, 2, 26, 2, -2))
sketch1.addConstraint(Sketcher.Constraint("Symmetric", 21, 2, 28, 2, -2))
sketch1.addConstraint(Sketcher.Constraint("Symmetric", 15, 2, 35, 2, -2))
sketch1.addConstraint(Sketcher.Constraint("Symmetric", 17, 2, 37, 2, -2))
sketch1.addConstraint(Sketcher.Constraint("Symmetric", 23, 2, 39, 2, -2))
sketch1.addConstraint(Sketcher.Constraint("Symmetric", 25, 2, 41, 2, -2))
sketch1.addConstraint(Sketcher.Constraint("Symmetric", 31, 3, 65, 3, -1))
sketch1.addConstraint(Sketcher.Constraint("Symmetric", 32, 3, 66, 3, -1))
sketch1.addConstraint(Sketcher.Constraint("Symmetric", 30, 3, 71, 3, -1))
sketch1.addConstraint(Sketcher.Constraint("Symmetric", 13, 2, 53, 2, -1))
sketch1.addConstraint(Sketcher.Constraint("Symmetric", 11, 2, 55, 2, -1))
sketch1.addConstraint(Sketcher.Constraint("Parallel", 3, 7))
sketch1.addConstraint(Sketcher.Constraint("Horizontal", 9, 3, 30, 3))
sketch1.addConstraint(Sketcher.Constraint("Horizontal", 31, 3, 32, 3))
sketch1.addConstraint(Sketcher.Constraint("Horizontal", 2, 2, 5, 2))
sketch1.addConstraint(Sketcher.Constraint("Horizontal", 1, 2, 6, 2))
sketch1.addConstraint(Sketcher.Constraint("Horizontal", 11, 2, 18, 2))
sketch1.addConstraint(Sketcher.Constraint("Horizontal", 13, 2, 20, 2))
sketch1.addConstraint(Sketcher.Constraint("Vertical", 0, 2, 3, 2))
sketch1.addConstraint(Sketcher.Constraint("Vertical", 17, 2, 22, 2))
sketch1.addConstraint(Sketcher.Constraint("Vertical", 16, 2, 23, 2))
sketch1.addConstraint(Sketcher.Constraint("Vertical", 65, 3, 26, 2))
sketch1.addConstraint(Sketcher.Constraint("Equal", 13, 19))
sketch1.addConstraint(Sketcher.Constraint("Equal", 75, 10))
sketch1.addConstraint(Sketcher.Constraint("Equal", 70, 14))
sketch1.addConstraint(Sketcher.Constraint("Equal", 16, 22))
sketch1.addConstraint(Sketcher.Constraint("Diameter", 8, 3.2))
sketch1.addConstraint(Sketcher.Constraint("DistanceX", 0, 2, 0, 1, 170.0))
sketch1.addConstraint(Sketcher.Constraint("Angle", 1, Q("150 deg")))
sketch1.addConstraint(Sketcher.Constraint("DistanceX", 11, 1, 11, 2, 10.1))
sketch1.addConstraint(Sketcher.Constraint("DistanceX", 15, 1, 15, 2, 3.1))
sketch1.addConstraint(Sketcher.Constraint("DistanceX", -1, 1, 8, 3, 117.0))
sketch1.addConstraint(Sketcher.Constraint("DistanceY", -1, 1, 9, 3, 92.0))
sketch1.addConstraint(Sketcher.Constraint("DistanceY", -1, 1, 31, 3, 60.0))
sketch1.addConstraint(Sketcher.Constraint("DistanceY", 0, 2, -1, 1, 100.0))
sketch1.addConstraint(Sketcher.Constraint("DistanceX", 1, 2, -1, 1, 125.0))
sketch1.addConstraint(Sketcher.Constraint("DistanceY", -1, 1, 12, 2, 95.0))
sketch1.addConstraint(Sketcher.Constraint("DistanceX", -1, 1, 15, 2, 120.0))
sketch1.addConstraint(Sketcher.Constraint("DistanceX", 30, 3, -1, 1, 50.5))
sketch1.addConstraint(Sketcher.Constraint("DistanceX", 31, 3, -1, 1, 27.5))
sketch1.addConstraint(Sketcher.Constraint("DistanceX", 32, 3, -1, 1, 47.5))
sketch1.addConstraint(Sketcher.Constraint("DistanceX", -1, 1, 10, 2, 62.3))
sketch1.addConstraint(Sketcher.Constraint("DistanceY", -1, 1, 14, 2, 54.95))
sketch1.addConstraint(Sketcher.Constraint("DistanceY", -1, 1, 22, 2, 14.95))
sketch1.addConstraint(Sketcher.Constraint("DistanceY", -1, 1, 8, 3, 72.287187))
sketch1.addConstraint(Sketcher.Constraint("DistanceX", -1, 1, 9, 3, 82.856406))
pad1 = body.newObject("PartDesign::Pad", "Pad")
pad1.Profile = sketch1
pad1.Length = 3
pad1.Reversed = True

# Sketch on XZ plane
sketch2 = body.newObject("Sketcher::SketchObject", "Sketch001")
sketch2.AttachmentSupport = (doc.getObject("XZ_Plane"), [""])
sketch2.MapMode = "FlatFace"
sketch2.AttachmentOffset = App.Placement(V(0, 0, -3), App.Rotation())
sketch2.addGeometry(Part.Circle(V(-100, 46, 0), V(0, 0, 1), 1.35), False)
sketch2.addConstraint(Sketcher.Constraint("Diameter", 0, 2.7))
sketch2.addConstraint(Sketcher.Constraint("DistanceX", 0, 3, -1, 1, 100.0))
sketch2.addConstraint(Sketcher.Constraint("DistanceY", -1, 1, 0, 3, 46.0))
pocket1 = body.newObject("PartDesign::Pocket", "Pocket")
pocket1.Profile = sketch2
pocket1.Type = "UpToFirst"
pocket1.Reversed = True

# Sketch on XZ plane
sketch3 = body.newObject("Sketcher::SketchObject", "Sketch002")
sketch3.AttachmentSupport = (doc.getObject("XZ_Plane"), [""])
sketch3.MapMode = "FlatFace"
sketch3.AttachmentOffset = App.Placement(V(0, 0, -3), App.Rotation())
sketch3.addGeometry(Part.Circle(V(-42, 46, 0), V(0, 0, 1), 1.35), False)
sketch3.addConstraint(Sketcher.Constraint("Diameter", 0, 2.7))
sketch3.addConstraint(Sketcher.Constraint("DistanceX", 0, 3, -1, 1, 42.0))
sketch3.addConstraint(Sketcher.Constraint("DistanceY", -1, 1, 0, 3, 46.0))
pocket2 = body.newObject("PartDesign::Pocket", "Pocket001")
pocket2.Profile = sketch3
pocket2.Type = "UpToFirst"
pocket2.Reversed = True

# Sketch on XZ plane
sketch4 = body.newObject("Sketcher::SketchObject", "Sketch003")
sketch4.AttachmentSupport = (doc.getObject("XZ_Plane"), [""])
sketch4.MapMode = "FlatFace"
sketch4.AttachmentOffset = App.Placement(V(0, 0, -3), App.Rotation())
sketch4.addGeometry(Part.Circle(V(-42, -40, 0), V(0, 0, 1), 1.35), False)
sketch4.addConstraint(Sketcher.Constraint("Diameter", 0, 2.7))
sketch4.addConstraint(Sketcher.Constraint("DistanceX", 0, 3, -1, 1, 42.0))
sketch4.addConstraint(Sketcher.Constraint("DistanceY", 0, 3, -1, 1, 40.0))
pocket3 = body.newObject("PartDesign::Pocket", "Pocket002")
pocket3.Profile = sketch4
pocket3.Type = "UpToFirst"
pocket3.Reversed = True

# Sketch on XZ plane
sketch5 = body.newObject("Sketcher::SketchObject", "Sketch004")
sketch5.AttachmentSupport = (doc.getObject("XZ_Plane"), [""])
sketch5.MapMode = "FlatFace"
sketch5.AttachmentOffset = App.Placement(V(0, 0, -3), App.Rotation())
sketch5.addGeometry(Part.Circle(V(-100, -40, 0), V(0, 0, 1), 1.35), False)
sketch5.addConstraint(Sketcher.Constraint("Diameter", 0, 2.7))
sketch5.addConstraint(Sketcher.Constraint("DistanceX", 0, 3, -1, 1, 100.0))
sketch5.addConstraint(Sketcher.Constraint("DistanceY", 0, 3, -1, 1, 40.0))
pocket4 = body.newObject("PartDesign::Pocket", "Pocket003")
pocket4.Profile = sketch5
pocket4.Type = "UpToFirst"
pocket4.Reversed = True

# Sketch on XZ plane
sketch6 = body.newObject("Sketcher::SketchObject", "Sketch005")
sketch6.AttachmentSupport = (doc.getObject("XZ_Plane"), [""])
sketch6.MapMode = "FlatFace"
sketch6.AttachmentOffset = App.Placement(V(0, 0, -3), App.Rotation())
sketch6.addGeometry(Part.Circle(V(18, -61, 0), V(0, 0, 1), 1.6), False)
sketch6.addConstraint(Sketcher.Constraint("Diameter", 0, 3.2))
sketch6.addConstraint(Sketcher.Constraint("DistanceX", -1, 1, 0, 3, 18.0))
sketch6.addConstraint(Sketcher.Constraint("DistanceY", 0, 3, -1, 1, 61.0))
pocket5 = body.newObject("PartDesign::Pocket", "Pocket004")
pocket5.Profile = sketch6
pocket5.Type = "UpToFirst"
pocket5.Reversed = True

# Sketch on XZ plane
sketch7 = body.newObject("Sketcher::SketchObject", "Sketch006")
sketch7.AttachmentSupport = (doc.getObject("XZ_Plane"), [""])
sketch7.MapMode = "FlatFace"
sketch7.AttachmentOffset = App.Placement(V(0, 0, -3), App.Rotation())
sketch7.addGeometry(Part.Circle(V(105, -61, 0), V(0, 0, 1), 1.6), False)
sketch7.addConstraint(Sketcher.Constraint("Diameter", 0, 3.2))
sketch7.addConstraint(Sketcher.Constraint("DistanceX", -1, 1, 0, 3, 105.0))
sketch7.addConstraint(Sketcher.Constraint("DistanceY", 0, 3, -1, 1, 61.0))
pocket6 = body.newObject("PartDesign::Pocket", "Pocket005")
pocket6.Profile = sketch7
pocket6.Type = "UpToFirst"
pocket6.Reversed = True

# Sketch on XZ plane
sketch8 = body.newObject("Sketcher::SketchObject", "Sketch007")
sketch8.AttachmentSupport = (doc.getObject("XZ_Plane"), [""])
sketch8.MapMode = "FlatFace"
sketch8.AttachmentOffset = App.Placement(V(0, 0, -3), App.Rotation())
sketch8.addGeometry(Part.Circle(V(105, 61, 0), V(0, 0, 1), 1.6), False)
sketch8.addConstraint(Sketcher.Constraint("Diameter", 0, 3.2))
sketch8.addConstraint(Sketcher.Constraint("DistanceX", -1, 1, 0, 3, 105.0))
sketch8.addConstraint(Sketcher.Constraint("DistanceY", -1, 1, 0, 3, 61.0))
pocket7 = body.newObject("PartDesign::Pocket", "Pocket006")
pocket7.Profile = sketch8
pocket7.Type = "UpToFirst"
pocket7.Reversed = True

# Sketch on XZ plane
sketch9 = body.newObject("Sketcher::SketchObject", "Sketch008")
sketch9.AttachmentSupport = (doc.getObject("XZ_Plane"), [""])
sketch9.MapMode = "FlatFace"
sketch9.AttachmentOffset = App.Placement(V(0, 0, -3), App.Rotation())
sketch9.addGeometry(Part.Circle(V(18, 61, 0), V(0, 0, 1), 1.6), False)
sketch9.addConstraint(Sketcher.Constraint("Diameter", 0, 3.2))
sketch9.addConstraint(Sketcher.Constraint("DistanceX", -1, 1, 0, 3, 18.0))
sketch9.addConstraint(Sketcher.Constraint("DistanceY", -1, 1, 0, 3, 61.0))
pocket8 = body.newObject("PartDesign::Pocket", "Pocket007")
pocket8.Profile = sketch9
pocket8.Type = "UpToFirst"
pocket8.Reversed = True
doc.recompute()

fillet = body.newObject("PartDesign::Fillet", "Fillet")
fillet.Base = (pocket8, edges_at(pocket8, [
    (-85, 1.5, -100),
    (85, 1.5, -100),
    (125, 1.5, -76.906),
    (125, 1.5, 76.906),
    (85, 1.5, 100),
    (-85, 1.5, 100),
    (-125, 1.5, 76.906),
    (-125, 1.5, -76.906),
]))
fillet.Radius = 3

doc.recompute()
